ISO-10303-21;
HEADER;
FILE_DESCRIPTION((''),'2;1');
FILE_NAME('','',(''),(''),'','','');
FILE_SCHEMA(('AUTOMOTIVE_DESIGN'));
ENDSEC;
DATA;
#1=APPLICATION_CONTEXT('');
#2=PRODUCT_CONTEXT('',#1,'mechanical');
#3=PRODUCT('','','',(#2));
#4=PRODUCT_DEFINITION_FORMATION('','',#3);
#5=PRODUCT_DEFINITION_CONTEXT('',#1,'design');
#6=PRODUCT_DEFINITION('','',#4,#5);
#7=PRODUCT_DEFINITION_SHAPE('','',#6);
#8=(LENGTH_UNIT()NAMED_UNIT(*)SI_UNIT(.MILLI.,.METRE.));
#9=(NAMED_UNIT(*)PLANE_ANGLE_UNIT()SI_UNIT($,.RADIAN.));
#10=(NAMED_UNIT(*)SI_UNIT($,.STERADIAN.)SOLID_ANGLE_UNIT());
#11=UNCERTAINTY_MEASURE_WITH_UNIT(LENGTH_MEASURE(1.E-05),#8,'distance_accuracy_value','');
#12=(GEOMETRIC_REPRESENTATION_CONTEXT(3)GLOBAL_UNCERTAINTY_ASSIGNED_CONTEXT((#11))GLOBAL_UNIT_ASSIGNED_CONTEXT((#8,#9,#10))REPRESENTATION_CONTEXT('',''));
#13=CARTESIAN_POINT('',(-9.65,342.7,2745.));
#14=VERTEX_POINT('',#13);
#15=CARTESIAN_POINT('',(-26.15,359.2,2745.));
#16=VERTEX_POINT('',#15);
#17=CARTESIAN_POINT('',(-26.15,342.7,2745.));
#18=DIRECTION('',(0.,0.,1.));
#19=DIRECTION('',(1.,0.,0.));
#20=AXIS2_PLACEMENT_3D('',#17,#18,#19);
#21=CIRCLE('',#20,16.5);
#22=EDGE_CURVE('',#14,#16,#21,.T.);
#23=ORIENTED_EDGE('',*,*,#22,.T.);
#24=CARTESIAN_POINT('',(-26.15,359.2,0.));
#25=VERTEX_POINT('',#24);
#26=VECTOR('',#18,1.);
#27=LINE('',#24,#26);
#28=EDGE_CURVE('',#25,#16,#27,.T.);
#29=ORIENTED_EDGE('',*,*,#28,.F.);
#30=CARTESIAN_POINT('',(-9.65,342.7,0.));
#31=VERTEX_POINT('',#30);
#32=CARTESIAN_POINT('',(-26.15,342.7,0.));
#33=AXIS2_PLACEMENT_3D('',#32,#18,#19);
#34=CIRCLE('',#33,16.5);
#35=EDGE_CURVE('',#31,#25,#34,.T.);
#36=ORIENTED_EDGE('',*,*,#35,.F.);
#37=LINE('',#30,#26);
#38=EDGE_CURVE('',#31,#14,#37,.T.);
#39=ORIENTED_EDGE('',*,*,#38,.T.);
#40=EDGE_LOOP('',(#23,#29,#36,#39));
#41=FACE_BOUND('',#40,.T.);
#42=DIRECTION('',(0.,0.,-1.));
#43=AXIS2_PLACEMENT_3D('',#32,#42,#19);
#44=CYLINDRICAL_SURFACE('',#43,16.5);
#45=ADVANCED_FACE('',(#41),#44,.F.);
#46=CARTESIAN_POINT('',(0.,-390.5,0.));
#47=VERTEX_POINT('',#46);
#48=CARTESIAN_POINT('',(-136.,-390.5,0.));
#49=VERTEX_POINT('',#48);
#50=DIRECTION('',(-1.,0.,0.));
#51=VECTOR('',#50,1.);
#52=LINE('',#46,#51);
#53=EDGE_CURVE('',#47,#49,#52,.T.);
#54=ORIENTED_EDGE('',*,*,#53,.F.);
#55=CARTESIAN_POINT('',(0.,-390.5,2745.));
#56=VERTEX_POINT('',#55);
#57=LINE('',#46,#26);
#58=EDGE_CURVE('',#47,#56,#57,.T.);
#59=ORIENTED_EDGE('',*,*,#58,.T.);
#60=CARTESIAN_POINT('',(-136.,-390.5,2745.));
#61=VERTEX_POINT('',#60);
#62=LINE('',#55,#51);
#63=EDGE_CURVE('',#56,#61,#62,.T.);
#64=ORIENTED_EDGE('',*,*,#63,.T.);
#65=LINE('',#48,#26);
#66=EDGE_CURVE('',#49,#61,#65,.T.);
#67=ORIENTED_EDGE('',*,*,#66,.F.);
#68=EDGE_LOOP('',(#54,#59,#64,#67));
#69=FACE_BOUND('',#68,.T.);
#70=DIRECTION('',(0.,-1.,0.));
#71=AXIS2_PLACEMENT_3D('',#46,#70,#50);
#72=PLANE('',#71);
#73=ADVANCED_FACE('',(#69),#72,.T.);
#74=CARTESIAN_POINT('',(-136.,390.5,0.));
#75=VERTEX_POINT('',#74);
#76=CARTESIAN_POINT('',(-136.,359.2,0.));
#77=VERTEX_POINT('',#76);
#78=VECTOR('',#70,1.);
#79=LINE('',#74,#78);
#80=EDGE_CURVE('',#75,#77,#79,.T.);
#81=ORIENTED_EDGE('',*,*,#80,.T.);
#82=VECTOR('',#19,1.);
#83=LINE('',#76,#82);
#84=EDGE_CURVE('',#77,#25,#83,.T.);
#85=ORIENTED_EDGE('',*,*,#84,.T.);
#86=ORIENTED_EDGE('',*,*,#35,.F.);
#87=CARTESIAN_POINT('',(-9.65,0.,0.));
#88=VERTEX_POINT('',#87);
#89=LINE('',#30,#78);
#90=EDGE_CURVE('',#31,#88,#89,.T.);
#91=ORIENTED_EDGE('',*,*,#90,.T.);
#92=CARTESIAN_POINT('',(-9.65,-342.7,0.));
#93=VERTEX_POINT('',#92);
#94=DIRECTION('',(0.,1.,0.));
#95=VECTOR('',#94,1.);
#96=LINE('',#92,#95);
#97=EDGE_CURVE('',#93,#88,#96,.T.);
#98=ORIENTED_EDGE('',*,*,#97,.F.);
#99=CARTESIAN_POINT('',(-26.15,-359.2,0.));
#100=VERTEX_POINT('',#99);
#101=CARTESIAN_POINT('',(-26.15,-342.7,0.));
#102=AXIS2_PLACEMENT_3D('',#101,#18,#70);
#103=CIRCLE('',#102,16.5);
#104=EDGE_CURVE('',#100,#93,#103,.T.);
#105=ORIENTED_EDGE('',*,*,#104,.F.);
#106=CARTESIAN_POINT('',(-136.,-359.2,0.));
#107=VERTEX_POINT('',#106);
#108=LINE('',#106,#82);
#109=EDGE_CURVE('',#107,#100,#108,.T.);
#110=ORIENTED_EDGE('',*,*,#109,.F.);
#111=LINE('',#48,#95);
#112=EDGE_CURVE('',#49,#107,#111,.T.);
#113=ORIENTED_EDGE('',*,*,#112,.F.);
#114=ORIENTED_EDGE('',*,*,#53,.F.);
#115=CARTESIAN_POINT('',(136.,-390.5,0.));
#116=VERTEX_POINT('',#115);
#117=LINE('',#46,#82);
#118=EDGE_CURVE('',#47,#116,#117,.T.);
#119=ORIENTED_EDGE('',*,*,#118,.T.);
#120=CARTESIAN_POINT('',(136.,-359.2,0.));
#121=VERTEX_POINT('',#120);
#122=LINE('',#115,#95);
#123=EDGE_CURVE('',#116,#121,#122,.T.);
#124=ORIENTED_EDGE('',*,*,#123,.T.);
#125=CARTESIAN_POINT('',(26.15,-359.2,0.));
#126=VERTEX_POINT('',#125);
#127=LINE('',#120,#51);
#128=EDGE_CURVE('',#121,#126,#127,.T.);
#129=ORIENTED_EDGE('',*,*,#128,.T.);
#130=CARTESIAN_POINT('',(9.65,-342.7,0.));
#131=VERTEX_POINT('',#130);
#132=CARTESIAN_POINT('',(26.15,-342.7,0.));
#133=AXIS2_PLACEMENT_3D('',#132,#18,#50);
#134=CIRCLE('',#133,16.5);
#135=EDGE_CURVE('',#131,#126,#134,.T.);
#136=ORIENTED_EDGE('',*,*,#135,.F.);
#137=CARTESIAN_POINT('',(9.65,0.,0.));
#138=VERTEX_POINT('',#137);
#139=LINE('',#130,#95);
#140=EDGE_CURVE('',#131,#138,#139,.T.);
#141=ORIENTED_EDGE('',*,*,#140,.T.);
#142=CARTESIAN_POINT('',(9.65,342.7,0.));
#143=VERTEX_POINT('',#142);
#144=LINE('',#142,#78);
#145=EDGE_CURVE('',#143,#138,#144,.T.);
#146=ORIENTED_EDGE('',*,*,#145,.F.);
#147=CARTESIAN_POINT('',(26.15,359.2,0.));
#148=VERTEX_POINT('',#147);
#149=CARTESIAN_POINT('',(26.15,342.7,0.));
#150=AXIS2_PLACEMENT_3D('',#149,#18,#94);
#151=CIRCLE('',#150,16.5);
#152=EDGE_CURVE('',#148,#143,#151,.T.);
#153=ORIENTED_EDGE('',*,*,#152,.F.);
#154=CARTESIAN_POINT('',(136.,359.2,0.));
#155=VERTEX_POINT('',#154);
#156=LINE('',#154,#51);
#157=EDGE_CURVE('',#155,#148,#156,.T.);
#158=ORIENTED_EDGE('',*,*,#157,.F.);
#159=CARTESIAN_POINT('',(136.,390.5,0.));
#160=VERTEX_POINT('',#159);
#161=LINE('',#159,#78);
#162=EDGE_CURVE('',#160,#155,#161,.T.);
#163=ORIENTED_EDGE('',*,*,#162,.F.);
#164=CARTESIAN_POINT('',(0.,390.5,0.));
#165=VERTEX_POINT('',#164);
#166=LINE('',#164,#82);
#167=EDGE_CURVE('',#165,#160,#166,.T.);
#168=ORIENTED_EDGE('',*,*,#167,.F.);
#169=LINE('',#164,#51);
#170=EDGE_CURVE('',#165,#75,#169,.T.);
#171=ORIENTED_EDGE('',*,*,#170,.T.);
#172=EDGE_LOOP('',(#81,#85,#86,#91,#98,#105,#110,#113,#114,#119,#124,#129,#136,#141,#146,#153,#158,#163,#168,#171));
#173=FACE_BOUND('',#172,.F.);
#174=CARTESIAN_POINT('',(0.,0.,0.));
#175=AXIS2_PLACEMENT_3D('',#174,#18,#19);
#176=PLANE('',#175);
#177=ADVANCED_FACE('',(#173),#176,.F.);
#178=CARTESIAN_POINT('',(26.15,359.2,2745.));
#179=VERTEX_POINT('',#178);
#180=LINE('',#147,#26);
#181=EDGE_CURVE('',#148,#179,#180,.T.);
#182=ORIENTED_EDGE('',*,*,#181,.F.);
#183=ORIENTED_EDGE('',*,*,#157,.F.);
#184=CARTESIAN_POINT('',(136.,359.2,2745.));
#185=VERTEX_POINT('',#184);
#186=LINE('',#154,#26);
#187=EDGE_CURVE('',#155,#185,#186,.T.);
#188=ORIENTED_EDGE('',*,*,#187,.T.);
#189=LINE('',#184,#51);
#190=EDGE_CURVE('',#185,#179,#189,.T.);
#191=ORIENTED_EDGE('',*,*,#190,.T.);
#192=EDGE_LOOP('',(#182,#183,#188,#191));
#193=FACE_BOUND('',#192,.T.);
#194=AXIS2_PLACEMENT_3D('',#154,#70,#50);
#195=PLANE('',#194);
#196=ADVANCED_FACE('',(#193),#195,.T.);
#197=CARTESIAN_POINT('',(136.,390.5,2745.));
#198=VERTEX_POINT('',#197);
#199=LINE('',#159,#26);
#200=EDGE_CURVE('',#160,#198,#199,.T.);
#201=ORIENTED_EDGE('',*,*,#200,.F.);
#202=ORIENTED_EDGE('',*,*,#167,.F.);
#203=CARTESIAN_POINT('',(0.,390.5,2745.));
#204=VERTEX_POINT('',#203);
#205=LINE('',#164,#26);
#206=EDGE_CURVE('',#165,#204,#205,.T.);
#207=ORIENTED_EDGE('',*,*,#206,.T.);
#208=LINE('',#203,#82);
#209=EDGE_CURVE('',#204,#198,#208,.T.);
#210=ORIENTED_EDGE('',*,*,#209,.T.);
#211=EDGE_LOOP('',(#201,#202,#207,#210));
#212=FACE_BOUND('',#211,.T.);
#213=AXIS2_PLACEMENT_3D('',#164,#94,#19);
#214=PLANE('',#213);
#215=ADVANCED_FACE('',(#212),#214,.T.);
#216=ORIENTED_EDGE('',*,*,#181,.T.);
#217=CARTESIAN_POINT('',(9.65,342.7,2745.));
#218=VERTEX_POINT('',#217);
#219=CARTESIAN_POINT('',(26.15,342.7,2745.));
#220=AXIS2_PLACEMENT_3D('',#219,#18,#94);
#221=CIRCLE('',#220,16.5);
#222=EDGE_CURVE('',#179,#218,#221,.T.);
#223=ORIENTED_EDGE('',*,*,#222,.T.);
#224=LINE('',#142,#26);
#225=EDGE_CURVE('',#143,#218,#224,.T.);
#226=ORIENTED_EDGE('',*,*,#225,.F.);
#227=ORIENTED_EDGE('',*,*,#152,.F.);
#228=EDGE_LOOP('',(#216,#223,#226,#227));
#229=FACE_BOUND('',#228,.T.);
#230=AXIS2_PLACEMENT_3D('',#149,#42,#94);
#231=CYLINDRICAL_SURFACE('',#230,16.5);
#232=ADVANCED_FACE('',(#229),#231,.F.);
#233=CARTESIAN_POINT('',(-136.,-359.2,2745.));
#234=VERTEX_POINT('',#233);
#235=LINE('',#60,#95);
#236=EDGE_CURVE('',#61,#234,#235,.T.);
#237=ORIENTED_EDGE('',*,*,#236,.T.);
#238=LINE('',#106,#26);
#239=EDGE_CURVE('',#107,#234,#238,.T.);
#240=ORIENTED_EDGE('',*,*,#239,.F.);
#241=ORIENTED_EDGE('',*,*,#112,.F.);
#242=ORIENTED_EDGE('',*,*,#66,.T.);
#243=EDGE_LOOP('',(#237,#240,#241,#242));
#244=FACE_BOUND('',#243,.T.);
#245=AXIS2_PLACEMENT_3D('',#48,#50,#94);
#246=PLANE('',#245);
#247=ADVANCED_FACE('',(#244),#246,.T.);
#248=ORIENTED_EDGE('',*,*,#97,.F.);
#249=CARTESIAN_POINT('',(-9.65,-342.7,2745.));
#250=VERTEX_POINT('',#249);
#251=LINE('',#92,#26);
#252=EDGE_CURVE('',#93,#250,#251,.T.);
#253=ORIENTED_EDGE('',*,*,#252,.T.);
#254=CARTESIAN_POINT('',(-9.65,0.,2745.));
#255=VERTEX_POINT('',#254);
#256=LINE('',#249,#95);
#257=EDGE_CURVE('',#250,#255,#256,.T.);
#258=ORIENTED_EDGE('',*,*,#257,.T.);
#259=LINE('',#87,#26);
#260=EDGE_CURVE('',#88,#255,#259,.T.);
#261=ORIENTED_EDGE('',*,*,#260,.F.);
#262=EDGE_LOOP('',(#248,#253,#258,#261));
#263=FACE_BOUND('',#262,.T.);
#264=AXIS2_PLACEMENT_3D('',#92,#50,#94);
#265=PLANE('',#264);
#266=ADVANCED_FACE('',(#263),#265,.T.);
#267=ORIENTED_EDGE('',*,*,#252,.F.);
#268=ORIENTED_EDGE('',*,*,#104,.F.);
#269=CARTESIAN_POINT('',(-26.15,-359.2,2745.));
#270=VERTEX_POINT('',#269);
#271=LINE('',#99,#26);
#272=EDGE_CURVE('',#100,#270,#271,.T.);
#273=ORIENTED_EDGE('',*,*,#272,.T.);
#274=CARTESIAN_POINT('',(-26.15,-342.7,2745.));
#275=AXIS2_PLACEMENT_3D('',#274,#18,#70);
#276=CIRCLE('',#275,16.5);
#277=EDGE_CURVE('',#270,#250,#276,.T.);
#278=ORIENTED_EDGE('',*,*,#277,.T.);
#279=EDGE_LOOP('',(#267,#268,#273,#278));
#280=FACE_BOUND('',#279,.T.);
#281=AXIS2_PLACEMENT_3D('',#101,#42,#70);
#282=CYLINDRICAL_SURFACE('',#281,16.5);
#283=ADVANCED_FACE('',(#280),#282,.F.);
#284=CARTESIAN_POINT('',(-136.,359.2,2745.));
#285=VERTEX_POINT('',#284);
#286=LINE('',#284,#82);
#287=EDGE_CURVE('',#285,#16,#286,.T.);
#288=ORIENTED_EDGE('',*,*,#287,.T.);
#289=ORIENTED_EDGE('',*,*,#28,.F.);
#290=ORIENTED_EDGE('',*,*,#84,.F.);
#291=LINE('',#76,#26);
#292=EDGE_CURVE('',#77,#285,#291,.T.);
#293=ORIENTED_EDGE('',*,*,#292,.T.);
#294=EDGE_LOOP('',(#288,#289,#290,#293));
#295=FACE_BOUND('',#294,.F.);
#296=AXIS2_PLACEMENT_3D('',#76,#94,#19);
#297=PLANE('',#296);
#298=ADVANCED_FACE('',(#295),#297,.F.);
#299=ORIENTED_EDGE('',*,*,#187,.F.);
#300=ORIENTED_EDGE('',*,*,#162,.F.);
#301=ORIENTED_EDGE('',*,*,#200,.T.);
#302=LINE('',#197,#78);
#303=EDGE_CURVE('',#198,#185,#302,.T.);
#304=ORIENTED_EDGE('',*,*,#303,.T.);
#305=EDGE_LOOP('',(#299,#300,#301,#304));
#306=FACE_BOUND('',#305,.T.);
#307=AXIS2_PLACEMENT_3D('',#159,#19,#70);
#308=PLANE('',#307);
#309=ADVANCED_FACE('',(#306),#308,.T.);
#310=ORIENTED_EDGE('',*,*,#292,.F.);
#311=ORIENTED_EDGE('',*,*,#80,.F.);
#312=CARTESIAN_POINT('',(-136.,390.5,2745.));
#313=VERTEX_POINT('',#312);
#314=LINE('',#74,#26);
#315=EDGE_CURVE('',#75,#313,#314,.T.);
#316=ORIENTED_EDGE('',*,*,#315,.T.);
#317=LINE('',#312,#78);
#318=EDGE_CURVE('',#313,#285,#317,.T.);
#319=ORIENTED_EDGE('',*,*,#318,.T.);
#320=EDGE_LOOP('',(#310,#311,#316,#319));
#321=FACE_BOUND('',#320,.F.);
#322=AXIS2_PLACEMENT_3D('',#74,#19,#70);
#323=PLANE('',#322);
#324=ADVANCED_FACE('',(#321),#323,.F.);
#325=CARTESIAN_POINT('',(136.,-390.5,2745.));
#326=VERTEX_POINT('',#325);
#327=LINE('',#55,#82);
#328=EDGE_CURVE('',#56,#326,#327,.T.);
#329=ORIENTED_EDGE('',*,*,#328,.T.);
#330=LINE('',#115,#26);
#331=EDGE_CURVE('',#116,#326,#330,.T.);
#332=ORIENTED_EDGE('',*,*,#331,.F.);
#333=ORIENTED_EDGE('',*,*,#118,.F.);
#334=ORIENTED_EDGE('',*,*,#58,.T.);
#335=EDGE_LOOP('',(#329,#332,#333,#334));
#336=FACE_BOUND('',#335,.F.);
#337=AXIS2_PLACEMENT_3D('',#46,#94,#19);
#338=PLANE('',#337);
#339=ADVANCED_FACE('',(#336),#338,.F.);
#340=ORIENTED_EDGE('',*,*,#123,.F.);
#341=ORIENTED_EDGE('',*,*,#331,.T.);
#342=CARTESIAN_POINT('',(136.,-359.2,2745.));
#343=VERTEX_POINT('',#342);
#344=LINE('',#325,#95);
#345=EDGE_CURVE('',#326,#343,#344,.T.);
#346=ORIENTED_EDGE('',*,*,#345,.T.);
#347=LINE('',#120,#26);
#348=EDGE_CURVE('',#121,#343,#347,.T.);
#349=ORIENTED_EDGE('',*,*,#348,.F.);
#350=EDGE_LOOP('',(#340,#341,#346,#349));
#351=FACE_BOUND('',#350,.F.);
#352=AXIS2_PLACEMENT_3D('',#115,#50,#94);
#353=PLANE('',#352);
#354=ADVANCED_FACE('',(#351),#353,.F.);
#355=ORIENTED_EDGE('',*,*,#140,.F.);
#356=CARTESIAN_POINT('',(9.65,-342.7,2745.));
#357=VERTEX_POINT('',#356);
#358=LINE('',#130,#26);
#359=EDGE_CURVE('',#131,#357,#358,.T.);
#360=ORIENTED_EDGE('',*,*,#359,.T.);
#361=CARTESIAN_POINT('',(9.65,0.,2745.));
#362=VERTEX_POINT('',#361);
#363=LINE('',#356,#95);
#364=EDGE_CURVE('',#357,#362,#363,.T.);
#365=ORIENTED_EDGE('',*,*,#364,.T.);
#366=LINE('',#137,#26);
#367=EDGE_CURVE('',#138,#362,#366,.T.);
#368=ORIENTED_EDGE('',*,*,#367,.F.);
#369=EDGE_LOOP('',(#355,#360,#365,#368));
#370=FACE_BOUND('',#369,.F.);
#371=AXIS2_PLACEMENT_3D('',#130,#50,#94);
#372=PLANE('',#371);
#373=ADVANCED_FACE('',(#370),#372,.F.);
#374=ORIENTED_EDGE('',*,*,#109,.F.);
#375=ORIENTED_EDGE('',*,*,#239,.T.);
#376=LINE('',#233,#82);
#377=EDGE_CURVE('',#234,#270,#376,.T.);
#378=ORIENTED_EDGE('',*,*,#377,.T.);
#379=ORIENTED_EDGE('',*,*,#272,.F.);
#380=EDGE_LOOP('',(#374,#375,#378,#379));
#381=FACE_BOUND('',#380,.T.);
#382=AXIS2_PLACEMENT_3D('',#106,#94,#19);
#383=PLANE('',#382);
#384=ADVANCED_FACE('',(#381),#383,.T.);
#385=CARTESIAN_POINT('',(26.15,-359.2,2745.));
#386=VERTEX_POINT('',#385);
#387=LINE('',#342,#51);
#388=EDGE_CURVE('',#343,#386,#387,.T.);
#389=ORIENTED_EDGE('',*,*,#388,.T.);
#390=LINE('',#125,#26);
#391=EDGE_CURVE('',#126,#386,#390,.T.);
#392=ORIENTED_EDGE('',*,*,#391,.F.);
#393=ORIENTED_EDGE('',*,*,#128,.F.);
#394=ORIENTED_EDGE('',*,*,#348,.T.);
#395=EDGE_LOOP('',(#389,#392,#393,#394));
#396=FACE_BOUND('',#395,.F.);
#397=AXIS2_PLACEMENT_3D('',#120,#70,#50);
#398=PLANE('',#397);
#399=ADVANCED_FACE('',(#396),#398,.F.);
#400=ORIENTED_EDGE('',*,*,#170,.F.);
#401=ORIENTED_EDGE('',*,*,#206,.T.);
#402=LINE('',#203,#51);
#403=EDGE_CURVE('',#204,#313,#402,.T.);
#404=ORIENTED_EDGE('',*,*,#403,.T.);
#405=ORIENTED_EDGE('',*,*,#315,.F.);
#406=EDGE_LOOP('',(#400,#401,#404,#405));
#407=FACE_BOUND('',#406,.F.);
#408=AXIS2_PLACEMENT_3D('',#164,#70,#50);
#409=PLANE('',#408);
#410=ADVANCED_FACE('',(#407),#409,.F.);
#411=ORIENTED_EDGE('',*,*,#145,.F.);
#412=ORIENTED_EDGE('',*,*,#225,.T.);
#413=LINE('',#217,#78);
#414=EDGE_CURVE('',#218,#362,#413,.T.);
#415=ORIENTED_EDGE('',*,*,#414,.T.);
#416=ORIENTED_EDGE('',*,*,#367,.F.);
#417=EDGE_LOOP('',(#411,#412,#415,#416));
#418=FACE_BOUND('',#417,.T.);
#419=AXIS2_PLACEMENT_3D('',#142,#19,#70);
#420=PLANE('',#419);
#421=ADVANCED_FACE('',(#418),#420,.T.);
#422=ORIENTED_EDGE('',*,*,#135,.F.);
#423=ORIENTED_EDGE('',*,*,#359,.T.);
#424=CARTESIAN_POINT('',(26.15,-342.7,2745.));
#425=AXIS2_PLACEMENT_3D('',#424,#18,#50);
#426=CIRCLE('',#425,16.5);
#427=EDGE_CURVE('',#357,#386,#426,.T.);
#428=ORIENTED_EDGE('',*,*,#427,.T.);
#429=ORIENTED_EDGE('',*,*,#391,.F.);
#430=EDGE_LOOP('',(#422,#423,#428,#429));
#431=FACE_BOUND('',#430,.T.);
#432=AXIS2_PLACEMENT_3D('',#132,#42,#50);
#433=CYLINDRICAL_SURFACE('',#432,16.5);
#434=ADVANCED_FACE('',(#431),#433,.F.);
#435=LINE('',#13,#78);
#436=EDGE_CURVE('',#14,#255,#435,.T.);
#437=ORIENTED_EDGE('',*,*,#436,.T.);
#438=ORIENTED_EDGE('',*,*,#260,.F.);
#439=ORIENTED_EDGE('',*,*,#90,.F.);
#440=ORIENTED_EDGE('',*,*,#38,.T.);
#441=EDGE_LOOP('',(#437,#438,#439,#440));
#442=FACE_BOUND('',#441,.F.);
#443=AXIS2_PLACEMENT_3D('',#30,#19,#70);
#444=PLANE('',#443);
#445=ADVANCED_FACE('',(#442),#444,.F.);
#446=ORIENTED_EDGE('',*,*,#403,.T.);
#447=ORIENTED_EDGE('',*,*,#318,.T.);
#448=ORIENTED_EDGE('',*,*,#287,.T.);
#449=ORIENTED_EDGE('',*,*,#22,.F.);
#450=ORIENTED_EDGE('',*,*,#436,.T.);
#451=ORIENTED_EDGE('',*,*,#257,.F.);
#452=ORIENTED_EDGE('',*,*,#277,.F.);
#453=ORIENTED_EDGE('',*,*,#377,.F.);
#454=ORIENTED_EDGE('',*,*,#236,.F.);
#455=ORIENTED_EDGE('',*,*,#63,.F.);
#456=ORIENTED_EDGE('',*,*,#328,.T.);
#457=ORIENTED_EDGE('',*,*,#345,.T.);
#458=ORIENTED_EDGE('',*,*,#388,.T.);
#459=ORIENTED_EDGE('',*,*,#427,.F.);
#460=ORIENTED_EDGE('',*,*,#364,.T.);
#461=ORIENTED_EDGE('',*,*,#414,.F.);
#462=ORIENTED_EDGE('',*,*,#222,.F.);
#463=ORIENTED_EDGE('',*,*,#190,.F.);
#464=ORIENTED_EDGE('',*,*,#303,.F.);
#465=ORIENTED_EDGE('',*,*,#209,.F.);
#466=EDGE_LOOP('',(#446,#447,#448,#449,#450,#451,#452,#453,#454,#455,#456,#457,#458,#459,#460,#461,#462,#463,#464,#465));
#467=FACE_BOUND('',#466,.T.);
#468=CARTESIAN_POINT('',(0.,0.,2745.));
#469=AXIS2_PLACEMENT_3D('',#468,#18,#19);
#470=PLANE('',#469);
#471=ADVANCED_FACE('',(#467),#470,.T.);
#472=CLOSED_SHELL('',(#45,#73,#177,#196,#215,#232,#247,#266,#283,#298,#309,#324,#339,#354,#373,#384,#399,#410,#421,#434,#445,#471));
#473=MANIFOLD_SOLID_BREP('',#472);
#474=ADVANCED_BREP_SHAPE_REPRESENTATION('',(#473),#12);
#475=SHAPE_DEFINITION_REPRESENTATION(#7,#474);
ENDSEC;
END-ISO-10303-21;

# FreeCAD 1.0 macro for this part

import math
import FreeCAD as App
import Part
import Sketcher
from FreeCAD import Vector

doc = App.newDocument("Part")
body = doc.addObject("PartDesign::Body", "Body")

sketch1 = body.newObject("Sketcher::SketchObject", "Sketch")
sketch1.AttachmentSupport = (doc.getObject("XY_Plane"), [""])
sketch1.MapMode = "FlatFace"
sketch1.addGeometry([
    Part.LineSegment(Vector(-136, -359, 0), Vector(-136, -390, 0)),
    Part.LineSegment(Vector(-136, -390, 0), Vector(136, -390, 0)),
    Part.LineSegment(Vector(136, -390, 0), Vector(136, -359, 0)),
    Part.LineSegment(Vector(136, -359, 0), Vector(26, -359, 0)),
    Part.ArcOfCircle(Part.Circle(Vector(26, -343, 0), Vector(0, 0, 1), 16), math.radians(180), math.radians(270)),
    Part.LineSegment(Vector(10, -343, 0), Vector(10, 343, 0)),
    Part.ArcOfCircle(Part.Circle(Vector(26, 343, 0), Vector(0, 0, 1), 16), math.radians(90), math.radians(180)),
    Part.LineSegment(Vector(26, 359, 0), Vector(136, 359, 0)),
    Part.LineSegment(Vector(136, 359, 0), Vector(136, 390, 0)),
    Part.LineSegment(Vector(136, 390, 0), Vector(-136, 390, 0)),
    Part.LineSegment(Vector(-136, 390, 0), Vector(-136, 359, 0)),
    Part.LineSegment(Vector(-136, 359, 0), Vector(-26, 359, 0)),
    Part.ArcOfCircle(Part.Circle(Vector(-26, 343, 0), Vector(0, 0, 1), 16), math.radians(0), math.radians(90)),
    Part.LineSegment(Vector(-10, 343, 0), Vector(-10, -343, 0)),
    Part.ArcOfCircle(Part.Circle(Vector(-26, -343, 0), Vector(0, 0, 1), 16), math.radians(-90), math.radians(0)),
    Part.LineSegment(Vector(-26, -359, 0), Vector(-136, -359, 0)),
], False)
sketch1.addConstraint([
    Sketcher.Constraint("Coincident", 0, 2, 1, 1),
    Sketcher.Constraint("Coincident", 1, 2, 2, 1),
    Sketcher.Constraint("Coincident", 2, 2, 3, 1),
    Sketcher.Constraint("Tangent", 3, 2, 4, 2),
    Sketcher.Constraint("Tangent", 4, 1, 5, 1),
    Sketcher.Constraint("Tangent", 5, 2, 6, 2),
    Sketcher.Constraint("Tangent", 6, 1, 7, 1),
    Sketcher.Constraint("Coincident", 7, 2, 8, 1),
    Sketcher.Constraint("Coincident", 8, 2, 9, 1),
    Sketcher.Constraint("Coincident", 9, 2, 10, 1),
    Sketcher.Constraint("Coincident", 10, 2, 11, 1),
    Sketcher.Constraint("Tangent", 11, 2, 12, 2),
    Sketcher.Constraint("Tangent", 12, 1, 13, 1),
    Sketcher.Constraint("Tangent", 13, 2, 14, 2),
    Sketcher.Constraint("Tangent", 14, 1, 15, 1),
    Sketcher.Constraint("Coincident", 15, 2, 0, 1),
    Sketcher.Constraint("Vertical", 0),
    Sketcher.Constraint("Horizontal", 1),
    Sketcher.Constraint("Vertical", 2),
    Sketcher.Constraint("Horizontal", 3),
    Sketcher.Constraint("Vertical", 5),
    Sketcher.Constraint("Horizontal", 7),
    Sketcher.Constraint("Vertical", 8),
    Sketcher.Constraint("Horizontal", 9),
    Sketcher.Constraint("Vertical", 10),
    Sketcher.Constraint("Horizontal", 11),
    Sketcher.Constraint("Vertical", 13),
    Sketcher.Constraint("Horizontal", 15),
    Sketcher.Constraint("Equal", 4, 6),
    Sketcher.Constraint("Equal", 6, 12),
    Sketcher.Constraint("Equal", 12, 14),
    Sketcher.Constraint("Symmetric", 4, 3, 12, 3, -1, 1),
    Sketcher.Constraint("Symmetric", 0, 2, 8, 2, -1, 1),
    Sketcher.Constraint("Symmetric", 7, 2, 10, 2, -2),
    Sketcher.Constraint("Symmetric", 2, 2, 15, 2, -2),
    Sketcher.Constraint("Radius", 4, 16.5),
    Sketcher.Constraint("DistanceY", 0, 2, 0, 1, 31.3),
    Sketcher.Constraint("DistanceX", 0, 2, -1, 1, 136.0),
    Sketcher.Constraint("DistanceY", 0, 2, -1, 1, 390.5),
    Sketcher.Constraint("DistanceX", -1, 1, 4, 1, 9.65),
])
pad1 = body.newObject("PartDesign::Pad", "Pad")
pad1.Profile = sketch1
pad1.Length = 2745

doc.recompute()
